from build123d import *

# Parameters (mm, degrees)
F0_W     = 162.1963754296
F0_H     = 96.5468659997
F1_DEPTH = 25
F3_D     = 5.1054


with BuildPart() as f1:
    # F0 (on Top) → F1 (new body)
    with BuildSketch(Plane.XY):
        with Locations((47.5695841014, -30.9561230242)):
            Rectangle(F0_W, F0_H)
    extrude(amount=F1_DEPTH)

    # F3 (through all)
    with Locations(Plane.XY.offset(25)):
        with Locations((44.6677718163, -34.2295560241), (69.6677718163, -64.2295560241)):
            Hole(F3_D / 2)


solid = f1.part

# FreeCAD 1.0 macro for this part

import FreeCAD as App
import Part
import Sketcher


def add_polygon(sketch, points):
    """Adds a closed chain of lines whose ends are joined by coincident constraints."""
    first, n = sketch.GeometryCount, len(points)
    for a, b in zip(points, points[1:] + points[:1]):
        sketch.addGeometry(Part.LineSegment(App.Vector(*a, 0), App.Vector(*b, 0)), False)
    for i in range(n):
        sketch.addConstraint(Sketcher.Constraint("Coincident", first + i, 2, first + (i + 1) % n, 1))

doc = App.newDocument("Part")
body = doc.addObject("PartDesign::Body", "Body")

sketch1 = doc.addObject("Sketcher::SketchObject", "Sketch")
body.addObject(sketch1)
sketch1.AttachmentSupport = (doc.XY_Plane, [""])
sketch1.MapMode = "FlatFace"
add_polygon(sketch1, [(-34, 17), (-34, -79), (129, -79), (129, 17)])
sketch1.addConstraint([
    Sketcher.Constraint("Vertical", 0),
    Sketcher.Constraint("Horizontal", 1),
    Sketcher.Constraint("Vertical", 2),
    Sketcher.Constraint("Horizontal", 3),
    Sketcher.Constraint("DistanceX", 1, 1, 1, 2, 162.196375),
    Sketcher.Constraint("DistanceY", 0, 2, 0, 1, 96.546866),
    Sketcher.Constraint("DistanceX", -1, 1, 1, 2, 128.667772),
    Sketcher.Constraint("DistanceY", -1, 1, 2, 2, 17.31731),
])
pad1 = doc.addObject("PartDesign::Pad", "Pad")
body.addObject(pad1)
pad1.Profile = sketch1
pad1.Length = 25

sketch2 = doc.addObject("Sketcher::SketchObject", "Sketch001")
body.addObject(sketch2)
sketch2.AttachmentSupport = (doc.XY_Plane, [""])
sketch2.MapMode = "FlatFace"
sketch2.AttachmentOffset = App.Placement(App.Vector(0, 0, 25), App.Rotation())
sketch2.addGeometry([
    Part.Circle(App.Vector(44.7, -34.2, 0), App.Vector(0, 0, 1), 2.6),
    Part.Circle(App.Vector(69.7, -64.2, 0), App.Vector(0, 0, 1), 2.6),
], False)
sketch2.addConstraint([
    Sketcher.Constraint("Equal", 0, 1),
    Sketcher.Constraint("DistanceX", 0, 3, 1, 3, 25.0),
    Sketcher.Constraint("DistanceY", 1, 3, 0, 3, 30.0),
    Sketcher.Constraint("Diameter", 0, 5.1054),
    Sketcher.Constraint("DistanceX", -1, 1, 0, 3, 44.667772),
    Sketcher.Constraint("DistanceY", 0, 3, -1, 1, 34.229556),
])
doc.recompute()
hole = doc.addObject("PartDesign::Hole", "Hole")
body.addObject(hole)
hole.Profile = sketch2
hole.ThreadType = "None"
hole.Diameter = 5.1054
hole.DepthType = "ThroughAll"

doc.recompute()
